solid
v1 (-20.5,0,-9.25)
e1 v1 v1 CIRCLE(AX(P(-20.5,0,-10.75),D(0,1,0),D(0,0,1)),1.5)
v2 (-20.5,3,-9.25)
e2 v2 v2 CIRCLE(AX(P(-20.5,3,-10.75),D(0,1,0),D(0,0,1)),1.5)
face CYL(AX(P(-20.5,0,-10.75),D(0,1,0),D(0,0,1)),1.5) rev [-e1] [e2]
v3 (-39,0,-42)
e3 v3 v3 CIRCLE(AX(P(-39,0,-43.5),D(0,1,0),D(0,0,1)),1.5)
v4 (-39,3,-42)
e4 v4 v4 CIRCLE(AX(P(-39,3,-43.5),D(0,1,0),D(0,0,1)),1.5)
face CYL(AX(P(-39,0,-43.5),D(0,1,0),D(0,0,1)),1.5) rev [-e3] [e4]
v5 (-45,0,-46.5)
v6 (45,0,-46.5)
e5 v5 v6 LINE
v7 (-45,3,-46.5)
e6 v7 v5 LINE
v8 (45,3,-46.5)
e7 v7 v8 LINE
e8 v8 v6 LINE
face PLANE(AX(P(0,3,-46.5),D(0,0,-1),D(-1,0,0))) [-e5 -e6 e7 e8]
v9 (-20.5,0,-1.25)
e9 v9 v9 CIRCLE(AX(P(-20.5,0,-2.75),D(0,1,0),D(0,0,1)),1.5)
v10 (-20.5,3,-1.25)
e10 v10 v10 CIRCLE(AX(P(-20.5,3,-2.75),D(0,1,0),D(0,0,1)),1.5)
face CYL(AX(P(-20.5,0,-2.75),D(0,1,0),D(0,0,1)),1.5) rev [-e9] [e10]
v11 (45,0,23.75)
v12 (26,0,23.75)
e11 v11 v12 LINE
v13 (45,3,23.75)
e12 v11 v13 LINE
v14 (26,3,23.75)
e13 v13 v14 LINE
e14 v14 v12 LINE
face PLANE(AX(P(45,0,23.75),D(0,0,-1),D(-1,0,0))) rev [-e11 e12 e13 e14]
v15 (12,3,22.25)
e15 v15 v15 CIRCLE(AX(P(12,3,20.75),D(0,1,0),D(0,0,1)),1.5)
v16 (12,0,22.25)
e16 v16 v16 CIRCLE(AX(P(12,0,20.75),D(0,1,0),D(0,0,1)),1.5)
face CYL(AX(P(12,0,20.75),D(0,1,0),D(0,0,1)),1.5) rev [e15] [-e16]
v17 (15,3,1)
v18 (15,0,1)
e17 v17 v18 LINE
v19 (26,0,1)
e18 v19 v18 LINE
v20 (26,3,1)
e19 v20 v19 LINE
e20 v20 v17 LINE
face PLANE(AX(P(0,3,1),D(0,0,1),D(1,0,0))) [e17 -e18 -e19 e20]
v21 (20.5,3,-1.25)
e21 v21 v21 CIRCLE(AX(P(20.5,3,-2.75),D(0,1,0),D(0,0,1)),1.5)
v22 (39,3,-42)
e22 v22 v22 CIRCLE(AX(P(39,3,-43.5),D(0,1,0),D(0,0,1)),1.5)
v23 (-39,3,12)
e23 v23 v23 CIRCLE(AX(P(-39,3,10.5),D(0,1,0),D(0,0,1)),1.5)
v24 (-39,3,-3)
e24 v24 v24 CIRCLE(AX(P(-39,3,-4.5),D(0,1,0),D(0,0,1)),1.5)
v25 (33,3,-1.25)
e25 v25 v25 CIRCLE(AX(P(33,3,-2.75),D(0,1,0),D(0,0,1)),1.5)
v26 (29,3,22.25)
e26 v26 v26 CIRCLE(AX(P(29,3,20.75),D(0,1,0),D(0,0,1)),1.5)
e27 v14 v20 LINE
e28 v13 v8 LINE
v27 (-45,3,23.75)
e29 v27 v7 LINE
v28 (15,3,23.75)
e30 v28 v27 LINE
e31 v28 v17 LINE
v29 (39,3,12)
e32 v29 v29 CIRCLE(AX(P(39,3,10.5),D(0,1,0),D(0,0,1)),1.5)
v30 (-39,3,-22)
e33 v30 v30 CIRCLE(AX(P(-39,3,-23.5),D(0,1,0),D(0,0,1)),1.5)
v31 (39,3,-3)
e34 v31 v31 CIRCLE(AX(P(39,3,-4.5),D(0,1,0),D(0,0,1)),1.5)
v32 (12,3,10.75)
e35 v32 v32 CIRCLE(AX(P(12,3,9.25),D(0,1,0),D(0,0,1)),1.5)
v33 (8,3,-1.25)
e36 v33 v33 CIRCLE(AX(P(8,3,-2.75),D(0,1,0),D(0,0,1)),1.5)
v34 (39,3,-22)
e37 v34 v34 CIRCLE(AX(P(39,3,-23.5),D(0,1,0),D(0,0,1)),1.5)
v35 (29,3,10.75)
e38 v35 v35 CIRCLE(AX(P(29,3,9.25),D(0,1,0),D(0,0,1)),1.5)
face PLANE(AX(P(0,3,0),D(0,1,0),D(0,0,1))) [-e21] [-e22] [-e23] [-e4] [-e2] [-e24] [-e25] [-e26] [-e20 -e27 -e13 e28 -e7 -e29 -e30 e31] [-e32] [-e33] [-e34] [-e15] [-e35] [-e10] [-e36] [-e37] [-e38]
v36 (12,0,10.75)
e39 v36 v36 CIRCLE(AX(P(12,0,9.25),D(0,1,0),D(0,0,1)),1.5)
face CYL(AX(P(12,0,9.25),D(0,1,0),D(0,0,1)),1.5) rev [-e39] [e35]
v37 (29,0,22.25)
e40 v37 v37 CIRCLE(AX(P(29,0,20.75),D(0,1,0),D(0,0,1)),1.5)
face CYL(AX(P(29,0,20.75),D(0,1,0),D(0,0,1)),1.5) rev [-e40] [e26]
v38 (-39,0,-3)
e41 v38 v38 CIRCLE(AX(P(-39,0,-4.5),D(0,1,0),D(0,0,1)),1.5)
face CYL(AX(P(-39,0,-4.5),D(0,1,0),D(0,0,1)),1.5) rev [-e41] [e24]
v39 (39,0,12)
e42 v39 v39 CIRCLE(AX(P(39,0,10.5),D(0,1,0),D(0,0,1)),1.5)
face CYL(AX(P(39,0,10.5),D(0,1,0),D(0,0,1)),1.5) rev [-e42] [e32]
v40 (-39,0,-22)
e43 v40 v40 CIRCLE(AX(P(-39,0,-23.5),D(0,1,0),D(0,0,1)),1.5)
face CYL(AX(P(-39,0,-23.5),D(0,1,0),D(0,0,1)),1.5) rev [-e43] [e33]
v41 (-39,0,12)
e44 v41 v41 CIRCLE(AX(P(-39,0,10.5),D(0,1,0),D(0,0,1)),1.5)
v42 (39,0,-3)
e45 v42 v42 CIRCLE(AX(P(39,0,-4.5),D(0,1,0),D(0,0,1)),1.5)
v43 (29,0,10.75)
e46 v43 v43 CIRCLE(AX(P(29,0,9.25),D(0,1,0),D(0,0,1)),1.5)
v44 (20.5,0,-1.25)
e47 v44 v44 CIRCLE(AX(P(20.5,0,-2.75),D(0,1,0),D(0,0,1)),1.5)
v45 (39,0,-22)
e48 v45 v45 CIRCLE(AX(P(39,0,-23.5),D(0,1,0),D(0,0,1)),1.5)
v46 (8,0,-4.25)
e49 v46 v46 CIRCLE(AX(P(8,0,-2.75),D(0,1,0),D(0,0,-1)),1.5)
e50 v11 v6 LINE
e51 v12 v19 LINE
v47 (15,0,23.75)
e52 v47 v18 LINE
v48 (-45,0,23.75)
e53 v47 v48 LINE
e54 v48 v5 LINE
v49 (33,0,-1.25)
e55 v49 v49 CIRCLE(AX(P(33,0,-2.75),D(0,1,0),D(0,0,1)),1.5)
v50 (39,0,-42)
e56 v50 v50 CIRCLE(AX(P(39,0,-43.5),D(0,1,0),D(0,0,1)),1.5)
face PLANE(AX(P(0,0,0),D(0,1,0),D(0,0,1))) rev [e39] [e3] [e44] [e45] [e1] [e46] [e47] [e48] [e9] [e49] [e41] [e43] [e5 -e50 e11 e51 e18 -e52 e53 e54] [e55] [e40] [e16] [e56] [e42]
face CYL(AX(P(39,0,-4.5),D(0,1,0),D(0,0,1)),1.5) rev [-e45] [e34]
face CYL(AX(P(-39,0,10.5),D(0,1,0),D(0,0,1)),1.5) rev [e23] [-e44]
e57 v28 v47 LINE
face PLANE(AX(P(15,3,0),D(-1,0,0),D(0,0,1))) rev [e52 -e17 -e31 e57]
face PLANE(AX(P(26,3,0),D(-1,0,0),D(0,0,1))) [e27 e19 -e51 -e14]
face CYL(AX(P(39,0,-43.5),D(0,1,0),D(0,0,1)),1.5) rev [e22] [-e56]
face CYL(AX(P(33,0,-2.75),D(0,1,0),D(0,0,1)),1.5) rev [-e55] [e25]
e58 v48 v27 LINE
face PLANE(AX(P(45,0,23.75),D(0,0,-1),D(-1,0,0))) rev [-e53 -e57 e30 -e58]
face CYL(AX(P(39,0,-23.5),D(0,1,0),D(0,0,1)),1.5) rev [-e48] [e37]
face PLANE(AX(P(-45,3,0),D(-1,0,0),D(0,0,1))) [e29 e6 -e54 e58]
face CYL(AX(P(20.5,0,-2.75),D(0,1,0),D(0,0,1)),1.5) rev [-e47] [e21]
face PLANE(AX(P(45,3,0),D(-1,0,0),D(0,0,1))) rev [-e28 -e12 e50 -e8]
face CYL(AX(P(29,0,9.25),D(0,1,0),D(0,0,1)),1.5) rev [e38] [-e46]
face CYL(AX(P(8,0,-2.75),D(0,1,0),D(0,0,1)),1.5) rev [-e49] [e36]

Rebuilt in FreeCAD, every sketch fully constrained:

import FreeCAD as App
import Part
import Sketcher
Q = App.Units.Quantity

doc = App.newDocument("Part")
body = doc.addObject("PartDesign::Body", "Body")

sketch1 = body.newObject("Sketcher::SketchObject", "Sketch")
sketch1.AttachmentSupport = (doc.getObject("XZ_Plane"), [""])
sketch1.MapMode = "FlatFace"
sketch1.addGeometry(Part.LineSegment(App.Vector(-45, -46, 0), App.Vector(-45, 46, 0)), False)
sketch1.addGeometry(Part.LineSegment(App.Vector(-45, 46, 0), App.Vector(15, 46, 0)), False)
sketch1.addGeometry(Part.LineSegment(App.Vector(15, 46, 0), App.Vector(15, 1, 0)), False)
sketch1.addGeometry(Part.LineSegment(App.Vector(15, 1, 0), App.Vector(26, 1, 0)), False)
sketch1.addGeometry(Part.LineSegment(App.Vector(26, 1, 0), App.Vector(26, 46, 0)), False)
sketch1.addGeometry(Part.LineSegment(App.Vector(26, 46, 0), App.Vector(45, 46, 0)), False)
sketch1.addGeometry(Part.LineSegment(App.Vector(45, 46, 0), App.Vector(45, -46, 0)), False)
sketch1.addGeometry(Part.LineSegment(App.Vector(45, -46, 0), App.Vector(-45, -46, 0)), False)
sketch1.addConstraint(Sketcher.Constraint("Coincident", 0, 2, 1, 1))
sketch1.addConstraint(Sketcher.Constraint("Coincident", 1, 2, 2, 1))
sketch1.addConstraint(Sketcher.Constraint("Coincident", 2, 2, 3, 1))
sketch1.addConstraint(Sketcher.Constraint("Coincident", 3, 2, 4, 1))
sketch1.addConstraint(Sketcher.Constraint("Coincident", 4, 2, 5, 1))
sketch1.addConstraint(Sketcher.Constraint("Coincident", 5, 2, 6, 1))
sketch1.addConstraint(Sketcher.Constraint("Coincident", 6, 2, 7, 1))
sketch1.addConstraint(Sketcher.Constraint("Coincident", 7, 2, 0, 1))
sketch1.addConstraint(Sketcher.Constraint("Vertical", 0))
sketch1.addConstraint(Sketcher.Constraint("Horizontal", 1))
sketch1.addConstraint(Sketcher.Constraint("Vertical", 2))
sketch1.addConstraint(Sketcher.Constraint("Horizontal", 3))
sketch1.addConstraint(Sketcher.Constraint("Vertical", 4))
sketch1.addConstraint(Sketcher.Constraint("Horizontal", 5))
sketch1.addConstraint(Sketcher.Constraint("Vertical", 6))
sketch1.addConstraint(Sketcher.Constraint("Horizontal", 7))
sketch1.addConstraint(Sketcher.Constraint("Symmetric", 0, 2, 6, 2, -1, 1))
sketch1.addConstraint(Sketcher.Constraint("Horizontal", 1, 2, 4, 2))
sketch1.addConstraint(Sketcher.Constraint("DistanceX", 1, 1, 1, 2, Q("60 mm")))
sketch1.addConstraint(Sketcher.Constraint("DistanceX", 3, 1, 3, 2, Q("11 mm")))
sketch1.addConstraint(Sketcher.Constraint("DistanceX", 5, 1, 5, 2, Q("19 mm")))
sketch1.addConstraint(Sketcher.Constraint("DistanceY", 0, 1, 0, 2, Q("93 mm")))
sketch1.addConstraint(Sketcher.Constraint("DistanceY", 2, 2, 2, 1, Q("45.5 mm")))
pad1 = body.newObject("PartDesign::Pad", "Pad")
pad1.Profile = sketch1
pad1.Length = 3
pad1.Reversed = True

sketch2 = body.newObject("Sketcher::SketchObject", "Sketch001")
sketch2.AttachmentSupport = (doc.getObject("XZ_Plane"), [""])
sketch2.MapMode = "FlatFace"
sketch2.AttachmentOffset = App.Placement(App.Vector(0, 0, -3), App.Rotation())
sketch2.addGeometry(Part.Circle(App.Vector(39, -4.5, 0), App.Vector(0, 0, 1), 1.5), False)
sketch2.addGeometry(Part.Circle(App.Vector(39, 10.5, 0), App.Vector(0, 0, 1), 1.5), False)
sketch2.addGeometry(Part.Circle(App.Vector(-39, -4.5, 0), App.Vector(0, 0, 1), 1.5), False)
sketch2.addGeometry(Part.Circle(App.Vector(-39, 10.5, 0), App.Vector(0, 0, 1), 1.5), False)
sketch2.addConstraint(Sketcher.Constraint("Equal", 0, 1))
sketch2.addConstraint(Sketcher.Constraint("Equal", 1, 2))
sketch2.addConstraint(Sketcher.Constraint("Equal", 2, 3))
sketch2.addConstraint(Sketcher.Constraint("Symmetric", 0, 3, 2, 3, -2))
sketch2.addConstraint(Sketcher.Constraint("Symmetric", 1, 3, 3, 3, -2))
sketch2.addConstraint(Sketcher.Constraint("Vertical", 0, 3, 1, 3))
sketch2.addConstraint(Sketcher.Constraint("Diameter", 0, Q("3 mm")))
sketch2.addConstraint(Sketcher.Constraint("DistanceX", -1, 1, 0, 3, Q("39 mm")))
sketch2.addConstraint(Sketcher.Constraint("DistanceY", 0, 3, 1, 3, Q("15 mm")))
sketch2.addConstraint(Sketcher.Constraint("DistanceY", 0, 3, -1, 1, Q("4.5 mm")))
pocket1 = body.newObject("PartDesign::Pocket", "Pocket")
pocket1.Profile = sketch2
pocket1.Type = "ThroughAll"
pocket1.Reversed = True

sketch3 = body.newObject("Sketcher::SketchObject", "Sketch002")
sketch3.AttachmentSupport = (doc.getObject("XZ_Plane"), [""])
sketch3.MapMode = "FlatFace"
sketch3.AttachmentOffset = App.Placement(App.Vector(0, 0, -3), App.Rotation())
sketch3.addGeometry(Part.Circle(App.Vector(29, 20.8, 0), App.Vector(0, 0, 1), 1.5), False)
sketch3.addGeometry(Part.Circle(App.Vector(12, 20.8, 0), App.Vector(0, 0, 1), 1.5), False)
sketch3.addConstraint(Sketcher.Constraint("Equal", 0, 1))
sketch3.addConstraint(Sketcher.Constraint("Horizontal", 0, 3, 1, 3))
sketch3.addConstraint(Sketcher.Constraint("Diameter", 0, Q("3 mm")))
sketch3.addConstraint(Sketcher.Constraint("DistanceX", -1, 1, 0, 3, Q("29 mm")))
sketch3.addConstraint(Sketcher.Constraint("DistanceX", -1, 1, 1, 3, Q("12 mm")))
sketch3.addConstraint(Sketcher.Constraint("DistanceY", -1, 1, 0, 3, Q("20.75 mm")))
pocket2 = body.newObject("PartDesign::Pocket", "Pocket001")
pocket2.Profile = sketch3
pocket2.Type = "ThroughAll"
pocket2.Reversed = True

sketch4 = body.newObject("Sketcher::SketchObject", "Sketch003")
sketch4.AttachmentSupport = (doc.getObject("XZ_Plane"), [""])
sketch4.MapMode = "FlatFace"
sketch4.AttachmentOffset = App.Placement(App.Vector(0, 0, -3), App.Rotation())
sketch4.addGeometry(Part.Circle(App.Vector(12, 9.2, 0), App.Vector(0, 0, 1), 1.5), False)
sketch4.addGeometry(Part.Circle(App.Vector(29, 9.2, 0), App.Vector(0, 0, 1), 1.5), False)
sketch4.addConstraint(Sketcher.Constraint("Equal", 0, 1))
sketch4.addConstraint(Sketcher.Constraint("Horizontal", 0, 3, 1, 3))
sketch4.addConstraint(Sketcher.Constraint("Diameter", 0, Q("3 mm")))
sketch4.addConstraint(Sketcher.Constraint("DistanceX", -1, 1, 0, 3, Q("12 mm")))
sketch4.addConstraint(Sketcher.Constraint("DistanceX", -1, 1, 1, 3, Q("29 mm")))
sketch4.addConstraint(Sketcher.Constraint("DistanceY", -1, 1, 0, 3, Q("9.25 mm")))
pocket3 = body.newObject("PartDesign::Pocket", "Pocket002")
pocket3.Profile = sketch4
pocket3.Type = "ThroughAll"
pocket3.Reversed = True

sketch5 = body.newObject("Sketcher::SketchObject", "Sketch004")
sketch5.AttachmentSupport = (doc.getObject("XZ_Plane"), [""])
sketch5.MapMode = "FlatFace"
sketch5.AttachmentOffset = App.Placement(App.Vector(0, 0, -3), App.Rotation())
sketch5.addGeometry(Part.LineSegment(App.Vector(-45, 24, 0), App.Vector(-45, 46, 0)), False)
sketch5.addGeometry(Part.LineSegment(App.Vector(-45, 46, 0), App.Vector(45, 46, 0)), False)
sketch5.addGeometry(Part.LineSegment(App.Vector(45, 46, 0), App.Vector(45, 24, 0)), False)
sketch5.addGeometry(Part.LineSegment(App.Vector(45, 24, 0), App.Vector(-45, 24, 0)), False)
sketch5.addConstraint(Sketcher.Constraint("Coincident", 0, 2, 1, 1))
sketch5.addConstraint(Sketcher.Constraint("Coincident", 1, 2, 2, 1))
sketch5.addConstraint(Sketcher.Constraint("Coincident", 2, 2, 3, 1))
sketch5.addConstraint(Sketcher.Constraint("Coincident", 3, 2, 0, 1))
sketch5.addConstraint(Sketcher.Constraint("Vertical", 0))
sketch5.addConstraint(Sketcher.Constraint("Horizontal", 1))
sketch5.addConstraint(Sketcher.Constraint("Vertical", 2))
sketch5.addConstraint(Sketcher.Constraint("Horizontal", 3))
sketch5.addConstraint(Sketcher.Constraint("DistanceX", 1, 1, 1, 2, Q("90 mm")))
sketch5.addConstraint(Sketcher.Constraint("DistanceX", 0, 2, -1, 1, Q("45 mm")))
sketch5.addConstraint(Sketcher.Constraint("DistanceY", 0, 1, 0, 2, Q("22.75 mm")))
sketch5.addConstraint(Sketcher.Constraint("DistanceY", -1, 1, 0, 2, Q("46.5 mm")))
pocket4 = body.newObject("PartDesign::Pocket", "Pocket003")
pocket4.Profile = sketch5
pocket4.Type = "ThroughAll"
pocket4.Reversed = True

sketch6 = body.newObject("Sketcher::SketchObject", "Sketch005")
sketch6.AttachmentSupport = (doc.getObject("XZ_Plane"), [""])
sketch6.MapMode = "FlatFace"
sketch6.AttachmentOffset = App.Placement(App.Vector(0, 0, -3), App.Rotation())
sketch6.addGeometry(Part.Circle(App.Vector(20.5, -2.8, 0), App.Vector(0, 0, 1), 1.5), False)
sketch6.addGeometry(Part.Circle(App.Vector(33, -2.8, 0), App.Vector(0, 0, 1), 1.5), False)
sketch6.addGeometry(Part.Circle(App.Vector(8, -2.8, 0), App.Vector(0, 0, 1), 1.5), False)
sketch6.addConstraint(Sketcher.Constraint("Equal", 0, 1))
sketch6.addConstraint(Sketcher.Constraint("Equal", 1, 2))
sketch6.addConstraint(Sketcher.Constraint("Horizontal", 0, 3, 1, 3))
sketch6.addConstraint(Sketcher.Constraint("Horizontal", 1, 3, 2, 3))
sketch6.addConstraint(Sketcher.Constraint("Diameter", 0, Q("3 mm")))
sketch6.addConstraint(Sketcher.Constraint("DistanceX", -1, 1, 1, 3, Q("33 mm")))
sketch6.addConstraint(Sketcher.Constraint("DistanceX", -1, 1, 2, 3, Q("8 mm")))
sketch6.addConstraint(Sketcher.Constraint("DistanceX", -1, 1, 0, 3, Q("20.5 mm")))
sketch6.addConstraint(Sketcher.Constraint("DistanceY", 0, 3, -1, 1, Q("2.75 mm")))
pocket5 = body.newObject("PartDesign::Pocket", "Pocket004")
pocket5.Profile = sketch6
pocket5.Type = "ThroughAll"
pocket5.Midplane = True

sketch7 = body.newObject("Sketcher::SketchObject", "Sketch006")
sketch7.AttachmentSupport = (doc.getObject("XZ_Plane"), [""])
sketch7.MapMode = "FlatFace"
sketch7.AttachmentOffset = App.Placement(App.Vector(0, 0, -3), App.Rotation())
sketch7.addGeometry(Part.Circle(App.Vector(-39, -23.5, 0), App.Vector(0, 0, 1), 1.5), False)
sketch7.addGeometry(Part.Circle(App.Vector(39, -23.5, 0), App.Vector(0, 0, 1), 1.5), False)
sketch7.addConstraint(Sketcher.Constraint("Equal", 0, 1))
sketch7.addConstraint(Sketcher.Constraint("Symmetric", 0, 3, 1, 3, -2))
sketch7.addConstraint(Sketcher.Constraint("Diameter", 0, Q("3 mm")))
sketch7.addConstraint(Sketcher.Constraint("DistanceX", 0, 3, -1, 1, Q("39 mm")))
sketch7.addConstraint(Sketcher.Constraint("DistanceY", 0, 3, -1, 1, Q("23.5 mm")))
pocket6 = body.newObject("PartDesign::Pocket", "Pocket005")
pocket6.Profile = sketch7
pocket6.Type = "ThroughAll"
pocket6.Reversed = True

sketch8 = body.newObject("Sketcher::SketchObject", "Sketch007")
sketch8.AttachmentSupport = (doc.getObject("XZ_Plane"), [""])
sketch8.MapMode = "FlatFace"
sketch8.AttachmentOffset = App.Placement(App.Vector(0, 0, -3), App.Rotation())
sketch8.addGeometry(Part.Circle(App.Vector(-39, -43.5, 0), App.Vector(0, 0, 1), 1.5), False)
sketch8.addGeometry(Part.Circle(App.Vector(39, -43.5, 0), App.Vector(0, 0, 1), 1.5), False)
sketch8.addConstraint(Sketcher.Constraint("Equal", 0, 1))
sketch8.addConstraint(Sketcher.Constraint("Symmetric", 0, 3, 1, 3, -2))
sketch8.addConstraint(Sketcher.Constraint("Diameter", 0, Q("3 mm")))
sketch8.addConstraint(Sketcher.Constraint("DistanceX", 0, 3, -1, 1, Q("39 mm")))
sketch8.addConstraint(Sketcher.Constraint("DistanceY", 0, 3, -1, 1, Q("43.5 mm")))
pocket7 = body.newObject("PartDesign::Pocket", "Pocket006")
pocket7.Profile = sketch8
pocket7.Type = "ThroughAll"
pocket7.Reversed = True

sketch9 = body.newObject("Sketcher::SketchObject", "Sketch008")
sketch9.AttachmentSupport = (doc.getObject("XZ_Plane"), [""])
sketch9.MapMode = "FlatFace"
sketch9.AttachmentOffset = App.Placement(App.Vector(0, 0, -3), App.Rotation())
sketch9.addGeometry(Part.Circle(App.Vector(-20.5, -2.8, 0), App.Vector(0, 0, 1), 1.5), False)
sketch9.addGeometry(Part.Circle(App.Vector(-20.5, -10.8, 0), App.Vector(0, 0, 1), 1.5), False)
sketch9.addConstraint(Sketcher.Constraint("Equal", 0, 1))
sketch9.addConstraint(Sketcher.Constraint("Vertical", 0, 3, 1, 3))
sketch9.addConstraint(Sketcher.Constraint("Diameter", 0, Q("3 mm")))
sketch9.addConstraint(Sketcher.Constraint("DistanceY", 1, 3, 0, 3, Q("8 mm")))
sketch9.addConstraint(Sketcher.Constraint("DistanceX", 0, 3, -1, 1, Q("20.5 mm")))
sketch9.addConstraint(Sketcher.Constraint("DistanceY", 0, 3, -1, 1, Q("2.75 mm")))
pocket8 = body.newObject("PartDesign::Pocket", "Pocket007")
pocket8.Profile = sketch9
pocket8.Type = "ThroughAll"
pocket8.Reversed = True

doc.recompute()
